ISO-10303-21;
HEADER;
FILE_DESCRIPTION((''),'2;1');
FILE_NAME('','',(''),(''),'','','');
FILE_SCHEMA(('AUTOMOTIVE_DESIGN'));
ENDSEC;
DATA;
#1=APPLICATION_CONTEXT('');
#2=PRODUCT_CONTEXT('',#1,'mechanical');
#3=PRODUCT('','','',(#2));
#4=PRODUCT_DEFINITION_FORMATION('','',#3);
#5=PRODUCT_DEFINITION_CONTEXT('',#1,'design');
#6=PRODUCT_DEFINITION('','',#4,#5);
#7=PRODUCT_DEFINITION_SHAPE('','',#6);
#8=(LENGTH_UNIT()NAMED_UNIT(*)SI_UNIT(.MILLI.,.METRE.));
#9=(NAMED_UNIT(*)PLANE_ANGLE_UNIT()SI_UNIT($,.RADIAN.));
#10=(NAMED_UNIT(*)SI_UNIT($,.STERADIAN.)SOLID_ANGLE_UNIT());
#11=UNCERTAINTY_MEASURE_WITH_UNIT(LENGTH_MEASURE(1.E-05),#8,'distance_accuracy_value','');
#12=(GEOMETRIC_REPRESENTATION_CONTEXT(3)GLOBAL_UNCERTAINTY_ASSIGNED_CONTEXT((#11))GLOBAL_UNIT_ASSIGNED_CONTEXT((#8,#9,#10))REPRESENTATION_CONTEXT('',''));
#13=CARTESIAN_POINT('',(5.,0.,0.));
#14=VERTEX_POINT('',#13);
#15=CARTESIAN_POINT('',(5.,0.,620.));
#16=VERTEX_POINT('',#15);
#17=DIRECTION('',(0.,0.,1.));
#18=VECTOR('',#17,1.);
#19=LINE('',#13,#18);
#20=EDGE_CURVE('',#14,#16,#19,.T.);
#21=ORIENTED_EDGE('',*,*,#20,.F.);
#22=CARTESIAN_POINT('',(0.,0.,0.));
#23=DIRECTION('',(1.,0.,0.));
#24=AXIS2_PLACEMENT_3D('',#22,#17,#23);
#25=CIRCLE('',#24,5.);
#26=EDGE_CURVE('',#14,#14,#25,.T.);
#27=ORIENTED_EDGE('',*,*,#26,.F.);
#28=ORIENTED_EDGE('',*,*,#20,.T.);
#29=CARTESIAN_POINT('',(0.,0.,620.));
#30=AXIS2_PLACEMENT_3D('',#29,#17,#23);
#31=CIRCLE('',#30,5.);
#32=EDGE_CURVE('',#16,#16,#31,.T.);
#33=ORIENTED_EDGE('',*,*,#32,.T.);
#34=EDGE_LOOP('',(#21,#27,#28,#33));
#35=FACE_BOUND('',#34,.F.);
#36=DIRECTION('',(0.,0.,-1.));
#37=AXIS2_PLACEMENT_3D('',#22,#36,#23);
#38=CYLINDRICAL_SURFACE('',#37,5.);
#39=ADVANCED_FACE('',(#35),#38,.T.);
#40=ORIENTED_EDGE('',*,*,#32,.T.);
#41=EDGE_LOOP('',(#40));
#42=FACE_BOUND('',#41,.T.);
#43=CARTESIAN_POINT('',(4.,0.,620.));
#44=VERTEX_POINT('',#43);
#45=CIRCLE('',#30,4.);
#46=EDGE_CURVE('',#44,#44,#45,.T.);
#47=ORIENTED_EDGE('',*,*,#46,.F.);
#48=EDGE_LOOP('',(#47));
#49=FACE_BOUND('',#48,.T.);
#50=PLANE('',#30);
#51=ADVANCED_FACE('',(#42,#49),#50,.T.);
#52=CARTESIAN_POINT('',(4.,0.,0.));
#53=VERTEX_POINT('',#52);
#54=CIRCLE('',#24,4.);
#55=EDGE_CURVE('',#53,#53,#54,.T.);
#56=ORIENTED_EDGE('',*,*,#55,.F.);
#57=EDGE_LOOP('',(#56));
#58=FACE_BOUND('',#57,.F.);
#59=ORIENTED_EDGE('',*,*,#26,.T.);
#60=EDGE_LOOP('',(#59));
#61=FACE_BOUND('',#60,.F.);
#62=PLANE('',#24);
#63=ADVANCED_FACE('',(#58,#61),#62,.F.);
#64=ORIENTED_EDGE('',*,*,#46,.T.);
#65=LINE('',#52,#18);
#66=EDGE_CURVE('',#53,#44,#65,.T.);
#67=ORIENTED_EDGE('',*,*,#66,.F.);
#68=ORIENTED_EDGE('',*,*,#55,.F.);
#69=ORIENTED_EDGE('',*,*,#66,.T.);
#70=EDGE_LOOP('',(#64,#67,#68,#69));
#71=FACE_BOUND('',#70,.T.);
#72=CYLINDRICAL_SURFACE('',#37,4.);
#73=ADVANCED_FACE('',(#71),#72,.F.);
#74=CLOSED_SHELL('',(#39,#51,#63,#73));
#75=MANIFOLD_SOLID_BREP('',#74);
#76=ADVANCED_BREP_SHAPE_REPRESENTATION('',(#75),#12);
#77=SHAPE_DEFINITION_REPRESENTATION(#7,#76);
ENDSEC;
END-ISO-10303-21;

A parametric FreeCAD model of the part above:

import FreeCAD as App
import Part
import Sketcher
Q = App.Units.Quantity

doc = App.newDocument("Part")
body = doc.addObject("PartDesign::Body", "Body")

sketch1 = body.newObject("Sketcher::SketchObject", "Sketch")
sketch1.AttachmentSupport = (doc.getObject("XY_Plane"), [""])
sketch1.MapMode = "FlatFace"
sketch1.addGeometry(Part.Circle(App.Vector(0, 0, 0), App.Vector(0, 0, 1), 5), False)
sketch1.addGeometry(Part.Circle(App.Vector(0, 0, 0), App.Vector(0, 0, 1), 4), False)
sketch1.addConstraint(Sketcher.Constraint("Coincident", 0, 3, -1, 1))
sketch1.addConstraint(Sketcher.Constraint("Coincident", 1, 3, -1, 1))
sketch1.addConstraint(Sketcher.Constraint("Diameter", 0, Q("10 mm")))
sketch1.addConstraint(Sketcher.Constraint("Diameter", 1, Q("8 mm")))
pad1 = body.newObject("PartDesign::Pad", "Pad")
pad1.Profile = sketch1
pad1.Length = 620

doc.recompute()
